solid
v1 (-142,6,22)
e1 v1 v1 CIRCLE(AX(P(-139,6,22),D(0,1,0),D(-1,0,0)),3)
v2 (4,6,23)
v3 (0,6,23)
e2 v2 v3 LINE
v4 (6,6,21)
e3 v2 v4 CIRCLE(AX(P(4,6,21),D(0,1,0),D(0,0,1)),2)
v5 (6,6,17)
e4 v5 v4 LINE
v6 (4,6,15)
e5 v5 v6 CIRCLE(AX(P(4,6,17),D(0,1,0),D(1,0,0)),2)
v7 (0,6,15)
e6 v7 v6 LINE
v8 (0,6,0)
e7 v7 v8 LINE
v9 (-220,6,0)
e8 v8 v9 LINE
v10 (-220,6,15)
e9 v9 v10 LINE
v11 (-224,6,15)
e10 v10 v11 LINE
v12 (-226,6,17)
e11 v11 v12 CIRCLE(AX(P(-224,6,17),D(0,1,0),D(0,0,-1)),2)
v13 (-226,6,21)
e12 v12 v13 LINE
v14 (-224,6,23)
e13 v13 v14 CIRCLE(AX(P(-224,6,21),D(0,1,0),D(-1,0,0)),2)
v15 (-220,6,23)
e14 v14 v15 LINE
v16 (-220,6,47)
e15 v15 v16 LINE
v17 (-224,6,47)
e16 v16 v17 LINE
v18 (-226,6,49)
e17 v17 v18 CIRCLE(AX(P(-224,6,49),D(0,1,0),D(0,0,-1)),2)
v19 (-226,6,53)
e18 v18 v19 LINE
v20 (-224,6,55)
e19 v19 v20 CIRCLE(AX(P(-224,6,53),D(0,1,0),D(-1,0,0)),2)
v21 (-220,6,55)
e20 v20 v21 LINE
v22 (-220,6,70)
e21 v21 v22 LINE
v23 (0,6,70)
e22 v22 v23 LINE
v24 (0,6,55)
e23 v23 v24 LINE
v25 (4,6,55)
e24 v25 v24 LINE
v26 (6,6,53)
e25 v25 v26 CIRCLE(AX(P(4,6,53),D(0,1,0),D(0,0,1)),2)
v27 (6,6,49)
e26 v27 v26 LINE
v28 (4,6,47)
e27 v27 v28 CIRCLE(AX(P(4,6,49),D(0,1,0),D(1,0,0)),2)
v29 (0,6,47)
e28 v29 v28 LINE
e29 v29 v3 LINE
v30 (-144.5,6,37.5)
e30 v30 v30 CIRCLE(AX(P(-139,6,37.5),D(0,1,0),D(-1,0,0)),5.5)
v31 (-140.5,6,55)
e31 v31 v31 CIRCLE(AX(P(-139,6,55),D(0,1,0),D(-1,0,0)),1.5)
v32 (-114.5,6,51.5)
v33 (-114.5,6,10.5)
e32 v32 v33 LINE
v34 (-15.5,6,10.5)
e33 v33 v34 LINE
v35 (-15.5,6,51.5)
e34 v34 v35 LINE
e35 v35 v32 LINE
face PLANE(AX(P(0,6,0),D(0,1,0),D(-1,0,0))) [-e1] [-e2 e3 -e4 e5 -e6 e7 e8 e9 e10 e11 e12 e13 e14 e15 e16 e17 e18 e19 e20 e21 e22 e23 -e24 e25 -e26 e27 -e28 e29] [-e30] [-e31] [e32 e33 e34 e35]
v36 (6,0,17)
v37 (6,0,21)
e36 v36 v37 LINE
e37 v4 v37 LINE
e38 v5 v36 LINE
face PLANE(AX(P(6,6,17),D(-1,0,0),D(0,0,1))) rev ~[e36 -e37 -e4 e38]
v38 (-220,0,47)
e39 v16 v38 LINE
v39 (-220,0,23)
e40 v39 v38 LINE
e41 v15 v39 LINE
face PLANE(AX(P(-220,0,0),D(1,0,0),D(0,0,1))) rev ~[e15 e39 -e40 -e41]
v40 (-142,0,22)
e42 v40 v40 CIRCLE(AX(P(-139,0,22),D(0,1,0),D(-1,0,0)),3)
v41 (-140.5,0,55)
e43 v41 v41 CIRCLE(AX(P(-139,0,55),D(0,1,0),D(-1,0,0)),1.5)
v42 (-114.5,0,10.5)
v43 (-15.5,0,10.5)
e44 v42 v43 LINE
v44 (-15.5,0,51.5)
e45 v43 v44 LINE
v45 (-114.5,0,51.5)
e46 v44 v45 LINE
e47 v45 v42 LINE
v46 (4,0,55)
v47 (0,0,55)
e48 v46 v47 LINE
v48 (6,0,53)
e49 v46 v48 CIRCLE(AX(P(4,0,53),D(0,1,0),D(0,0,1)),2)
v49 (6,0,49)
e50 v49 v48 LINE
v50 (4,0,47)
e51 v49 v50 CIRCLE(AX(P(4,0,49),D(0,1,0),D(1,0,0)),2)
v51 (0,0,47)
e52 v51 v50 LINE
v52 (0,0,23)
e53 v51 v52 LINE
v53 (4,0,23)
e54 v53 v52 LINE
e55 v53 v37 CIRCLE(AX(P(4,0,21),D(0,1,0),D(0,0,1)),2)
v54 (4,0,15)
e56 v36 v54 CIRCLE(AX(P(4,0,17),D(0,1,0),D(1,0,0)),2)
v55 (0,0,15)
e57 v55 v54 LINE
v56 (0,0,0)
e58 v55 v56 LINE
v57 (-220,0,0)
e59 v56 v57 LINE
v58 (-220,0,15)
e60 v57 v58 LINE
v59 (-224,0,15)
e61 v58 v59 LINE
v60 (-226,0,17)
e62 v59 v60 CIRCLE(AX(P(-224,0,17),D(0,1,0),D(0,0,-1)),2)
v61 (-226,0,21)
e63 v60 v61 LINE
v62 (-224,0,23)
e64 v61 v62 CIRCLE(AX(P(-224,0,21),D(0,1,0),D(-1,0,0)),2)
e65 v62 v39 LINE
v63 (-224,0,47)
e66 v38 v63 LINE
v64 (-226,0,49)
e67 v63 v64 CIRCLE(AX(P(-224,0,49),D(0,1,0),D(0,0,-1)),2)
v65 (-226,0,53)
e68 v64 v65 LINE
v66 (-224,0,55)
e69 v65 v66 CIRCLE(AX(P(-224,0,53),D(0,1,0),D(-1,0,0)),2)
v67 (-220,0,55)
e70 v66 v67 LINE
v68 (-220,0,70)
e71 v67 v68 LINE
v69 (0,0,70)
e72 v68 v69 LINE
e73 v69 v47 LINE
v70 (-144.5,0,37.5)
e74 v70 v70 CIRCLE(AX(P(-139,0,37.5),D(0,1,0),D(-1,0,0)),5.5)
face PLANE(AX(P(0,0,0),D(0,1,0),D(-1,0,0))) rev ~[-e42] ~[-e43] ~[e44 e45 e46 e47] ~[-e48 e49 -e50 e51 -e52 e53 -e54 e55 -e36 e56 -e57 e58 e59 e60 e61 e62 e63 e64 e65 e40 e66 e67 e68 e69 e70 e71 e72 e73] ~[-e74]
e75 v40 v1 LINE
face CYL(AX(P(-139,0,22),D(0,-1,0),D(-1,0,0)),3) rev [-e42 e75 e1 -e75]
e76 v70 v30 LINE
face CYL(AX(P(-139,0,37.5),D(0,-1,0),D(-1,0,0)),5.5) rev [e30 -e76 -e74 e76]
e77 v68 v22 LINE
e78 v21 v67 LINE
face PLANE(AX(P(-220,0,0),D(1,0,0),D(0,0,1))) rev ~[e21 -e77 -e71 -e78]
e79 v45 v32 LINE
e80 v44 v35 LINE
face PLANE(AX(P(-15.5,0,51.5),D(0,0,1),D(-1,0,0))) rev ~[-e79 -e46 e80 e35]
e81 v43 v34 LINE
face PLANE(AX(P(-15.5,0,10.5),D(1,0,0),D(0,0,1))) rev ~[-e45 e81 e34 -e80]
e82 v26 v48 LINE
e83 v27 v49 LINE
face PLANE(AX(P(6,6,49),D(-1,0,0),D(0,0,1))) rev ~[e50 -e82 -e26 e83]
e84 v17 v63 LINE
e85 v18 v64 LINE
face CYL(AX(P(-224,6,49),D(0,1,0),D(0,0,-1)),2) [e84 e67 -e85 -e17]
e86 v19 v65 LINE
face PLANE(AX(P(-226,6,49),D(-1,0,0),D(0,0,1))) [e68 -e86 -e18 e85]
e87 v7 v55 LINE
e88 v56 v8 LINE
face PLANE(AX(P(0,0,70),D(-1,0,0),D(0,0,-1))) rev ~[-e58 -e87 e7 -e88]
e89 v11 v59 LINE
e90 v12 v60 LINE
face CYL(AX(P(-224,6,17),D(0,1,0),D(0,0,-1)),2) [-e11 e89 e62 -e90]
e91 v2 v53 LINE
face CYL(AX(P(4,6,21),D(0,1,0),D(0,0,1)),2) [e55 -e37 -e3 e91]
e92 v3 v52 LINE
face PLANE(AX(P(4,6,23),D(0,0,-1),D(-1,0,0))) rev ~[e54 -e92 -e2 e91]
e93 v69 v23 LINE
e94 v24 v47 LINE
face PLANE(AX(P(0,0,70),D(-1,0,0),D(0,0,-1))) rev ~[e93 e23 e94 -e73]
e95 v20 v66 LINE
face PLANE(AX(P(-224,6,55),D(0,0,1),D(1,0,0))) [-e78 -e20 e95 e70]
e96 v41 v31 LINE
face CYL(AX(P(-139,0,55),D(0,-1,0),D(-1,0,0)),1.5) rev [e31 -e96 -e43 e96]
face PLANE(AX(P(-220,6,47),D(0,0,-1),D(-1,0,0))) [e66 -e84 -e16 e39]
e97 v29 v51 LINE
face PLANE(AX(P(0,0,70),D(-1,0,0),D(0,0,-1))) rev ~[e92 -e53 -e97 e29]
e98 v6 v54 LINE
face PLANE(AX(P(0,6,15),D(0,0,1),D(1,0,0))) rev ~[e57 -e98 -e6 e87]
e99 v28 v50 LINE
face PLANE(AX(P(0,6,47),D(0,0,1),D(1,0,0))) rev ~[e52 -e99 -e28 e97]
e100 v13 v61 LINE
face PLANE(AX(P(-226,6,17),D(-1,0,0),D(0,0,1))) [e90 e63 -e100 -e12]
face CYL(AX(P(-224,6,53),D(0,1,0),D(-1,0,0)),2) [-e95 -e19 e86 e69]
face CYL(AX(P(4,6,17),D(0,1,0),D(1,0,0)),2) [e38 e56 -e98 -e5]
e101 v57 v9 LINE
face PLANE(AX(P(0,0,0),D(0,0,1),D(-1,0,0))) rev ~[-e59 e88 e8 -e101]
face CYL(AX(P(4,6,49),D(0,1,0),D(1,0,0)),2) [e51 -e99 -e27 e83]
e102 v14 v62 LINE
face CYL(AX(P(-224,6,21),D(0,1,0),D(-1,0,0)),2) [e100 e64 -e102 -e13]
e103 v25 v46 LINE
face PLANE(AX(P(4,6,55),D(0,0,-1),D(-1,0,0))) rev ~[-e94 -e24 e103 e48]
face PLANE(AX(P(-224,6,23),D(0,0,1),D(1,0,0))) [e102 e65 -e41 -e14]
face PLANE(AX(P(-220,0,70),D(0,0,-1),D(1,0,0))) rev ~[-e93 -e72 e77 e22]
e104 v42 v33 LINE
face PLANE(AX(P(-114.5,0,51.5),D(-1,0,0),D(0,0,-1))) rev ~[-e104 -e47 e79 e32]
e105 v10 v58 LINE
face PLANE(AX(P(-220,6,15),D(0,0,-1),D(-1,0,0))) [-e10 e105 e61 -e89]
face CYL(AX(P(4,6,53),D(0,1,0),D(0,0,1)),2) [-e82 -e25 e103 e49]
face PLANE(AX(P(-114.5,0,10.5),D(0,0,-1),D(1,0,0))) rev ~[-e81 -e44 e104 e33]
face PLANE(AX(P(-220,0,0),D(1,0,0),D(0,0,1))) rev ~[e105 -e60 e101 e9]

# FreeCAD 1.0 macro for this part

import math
import FreeCAD as App
import Part
import Sketcher

V = App.Vector
Q = App.Units.Quantity


def add_polygon(sketch, points):
    """Adds a closed chain of lines whose ends are joined by coincident constraints."""
    first, n = sketch.GeometryCount, len(points)
    for a, b in zip(points, points[1:] + points[:1]):
        sketch.addGeometry(Part.LineSegment(App.Vector(*a, 0), App.Vector(*b, 0)), False)
    for i in range(n):
        sketch.addConstraint(Sketcher.Constraint("Coincident", first + i, 2, first + (i + 1) % n, 1))

doc = App.newDocument("Part")
body = doc.addObject("PartDesign::Body", "Body")

# Sketch on XZ plane
sketch1 = body.newObject("Sketcher::SketchObject", "Sketch")
sketch1.AttachmentSupport = (doc.getObject("XZ_Plane"), [""])
sketch1.MapMode = "FlatFace"
add_polygon(sketch1, [(0, 70), (0, 0), (-220, 0), (-220, 70)])  # lines 0-3
add_polygon(sketch1, [(-15.5, 10.5), (-15.5, 51.5), (-114.5, 51.5), (-114.5, 10.5)])  # lines 4-7
sketch1.addGeometry(Part.Circle(V(-139, 22, 0), V(0, 0, 1), 3), False)  # 8
sketch1.addGeometry(Part.Circle(V(-139, 37.5, 0), V(0, 0, 1), 5.5), False)  # 9
sketch1.addGeometry(Part.Circle(V(-139, 55, 0), V(0, 0, 1), 1.5), False)  # 10
sketch1.addConstraint(Sketcher.Constraint("Vertical", 0))
sketch1.addConstraint(Sketcher.Constraint("Horizontal", 1))
sketch1.addConstraint(Sketcher.Constraint("Vertical", 2))
sketch1.addConstraint(Sketcher.Constraint("Horizontal", 3))
sketch1.addConstraint(Sketcher.Constraint("Vertical", 4))
sketch1.addConstraint(Sketcher.Constraint("Horizontal", 5))
sketch1.addConstraint(Sketcher.Constraint("Vertical", 6))
sketch1.addConstraint(Sketcher.Constraint("Horizontal", 7))
sketch1.addConstraint(Sketcher.Constraint("Coincident", 0, 2, -1, 1))
sketch1.addConstraint(Sketcher.Constraint("Vertical", 8, 3, 9, 3))
sketch1.addConstraint(Sketcher.Constraint("Vertical", 9, 3, 10, 3))
sketch1.addConstraint(Sketcher.Constraint("Diameter", 8, Q("6 mm")))
sketch1.addConstraint(Sketcher.Constraint("Diameter", 9, Q("11 mm")))
sketch1.addConstraint(Sketcher.Constraint("Diameter", 10, Q("3 mm")))
sketch1.addConstraint(Sketcher.Constraint("DistanceX", 1, 2, 1, 1, Q("220 mm")))
sketch1.addConstraint(Sketcher.Constraint("DistanceX", 5, 2, 5, 1, Q("99 mm")))
sketch1.addConstraint(Sketcher.Constraint("DistanceY", 4, 1, 4, 2, Q("41 mm")))
sketch1.addConstraint(Sketcher.Constraint("DistanceY", -1, 1, 10, 3, Q("55 mm")))
sketch1.addConstraint(Sketcher.Constraint("DistanceY", 9, 3, 4, 2, Q("14 mm")))
sketch1.addConstraint(Sketcher.Constraint("DistanceX", 4, 2, -1, 1, Q("15.5 mm")))
sketch1.addConstraint(Sketcher.Constraint("DistanceY", 8, 3, 9, 3, Q("15.5 mm")))
sketch1.addConstraint(Sketcher.Constraint("DistanceY", 9, 3, 10, 3, Q("17.5 mm")))
sketch1.addConstraint(Sketcher.Constraint("DistanceY", 0, 2, 0, 1, Q("70 mm")))
sketch1.addConstraint(Sketcher.Constraint("DistanceX", 8, 3, -1, 1, Q("139 mm")))
pad1 = body.newObject("PartDesign::Pad", "Pad")
pad1.Profile = sketch1
pad1.Length = 6
pad1.Reversed = True

# Sketch on XZ plane
sketch2 = body.newObject("Sketcher::SketchObject", "Sketch001")
sketch2.AttachmentSupport = (doc.getObject("XZ_Plane"), [""])
sketch2.MapMode = "FlatFace"
sketch2.AttachmentOffset = App.Placement(V(0, 0, -6), App.Rotation())
sketch2.addGeometry(Part.LineSegment(V(4, 15, 0), V(0, 15, 0)), False)
sketch2.addGeometry(Part.LineSegment(V(0, 15, 0), V(0, 23, 0)), False)
sketch2.addGeometry(Part.LineSegment(V(0, 23, 0), V(4, 23, 0)), False)
sketch2.addGeometry(Part.ArcOfCircle(Part.Circle(V(4, 21, 0), V(0, 0, 1), 2), math.radians(0), math.radians(90)), False)
sketch2.addGeometry(Part.LineSegment(V(6, 21, 0), V(6, 17, 0)), False)
sketch2.addGeometry(Part.ArcOfCircle(Part.Circle(V(4, 17, 0), V(0, 0, 1), 2), math.radians(-90), math.radians(0)), False)
sketch2.addGeometry(Part.LineSegment(V(-220, 23, 0), V(-220, 15, 0)), False)
sketch2.addGeometry(Part.LineSegment(V(-220, 15, 0), V(-224, 15, 0)), False)
sketch2.addGeometry(Part.ArcOfCircle(Part.Circle(V(-224, 17, 0), V(0, 0, 1), 2), math.radians(180), math.radians(270)), False)
sketch2.addGeometry(Part.LineSegment(V(-226, 17, 0), V(-226, 21, 0)), False)
sketch2.addGeometry(Part.ArcOfCircle(Part.Circle(V(-224, 21, 0), V(0, 0, 1), 2), math.radians(90), math.radians(180)), False)
sketch2.addGeometry(Part.LineSegment(V(-224, 23, 0), V(-220, 23, 0)), False)
sketch2.addGeometry(Part.LineSegment(V(4, 47, 0), V(0, 47, 0)), False)
sketch2.addGeometry(Part.LineSegment(V(0, 47, 0), V(0, 55, 0)), False)
sketch2.addGeometry(Part.LineSegment(V(0, 55, 0), V(4, 55, 0)), False)
sketch2.addGeometry(Part.ArcOfCircle(Part.Circle(V(4, 53, 0), V(0, 0, 1), 2), math.radians(0), math.radians(90)), False)
sketch2.addGeometry(Part.LineSegment(V(6, 53, 0), V(6, 49, 0)), False)
sketch2.addGeometry(Part.ArcOfCircle(Part.Circle(V(4, 49, 0), V(0, 0, 1), 2), math.radians(-90), math.radians(0)), False)
sketch2.addGeometry(Part.LineSegment(V(-220, 55, 0), V(-220, 47, 0)), False)
sketch2.addGeometry(Part.LineSegment(V(-220, 47, 0), V(-224, 47, 0)), False)
sketch2.addGeometry(Part.ArcOfCircle(Part.Circle(V(-224, 49, 0), V(0, 0, 1), 2), math.radians(180), math.radians(270)), False)
sketch2.addGeometry(Part.LineSegment(V(-226, 49, 0), V(-226, 53, 0)), False)
sketch2.addGeometry(Part.ArcOfCircle(Part.Circle(V(-224, 53, 0), V(0, 0, 1), 2), math.radians(90), math.radians(180)), False)
sketch2.addGeometry(Part.LineSegment(V(-224, 55, 0), V(-220, 55, 0)), False)
sketch2.addConstraint(Sketcher.Constraint("Coincident", 0, 2, 1, 1))
sketch2.addConstraint(Sketcher.Constraint("Coincident", 1, 2, 2, 1))
sketch2.addConstraint(Sketcher.Constraint("Tangent", 2, 2, 3, 2))
sketch2.addConstraint(Sketcher.Constraint("Tangent", 3, 1, 4, 1))
sketch2.addConstraint(Sketcher.Constraint("Tangent", 4, 2, 5, 2))
sketch2.addConstraint(Sketcher.Constraint("Tangent", 5, 1, 0, 1))
sketch2.addConstraint(Sketcher.Constraint("Coincident", 6, 2, 7, 1))
sketch2.addConstraint(Sketcher.Constraint("Tangent", 7, 2, 8, 2))
sketch2.addConstraint(Sketcher.Constraint("Tangent", 8, 1, 9, 1))
sketch2.addConstraint(Sketcher.Constraint("Tangent", 9, 2, 10, 2))
sketch2.addConstraint(Sketcher.Constraint("Tangent", 10, 1, 11, 1))
sketch2.addConstraint(Sketcher.Constraint("Coincident", 11, 2, 6, 1))
sketch2.addConstraint(Sketcher.Constraint("Coincident", 12, 2, 13, 1))
sketch2.addConstraint(Sketcher.Constraint("Coincident", 13, 2, 14, 1))
sketch2.addConstraint(Sketcher.Constraint("Tangent", 14, 2, 15, 2))
sketch2.addConstraint(Sketcher.Constraint("Tangent", 15, 1, 16, 1))
sketch2.addConstraint(Sketcher.Constraint("Tangent", 16, 2, 17, 2))
sketch2.addConstraint(Sketcher.Constraint("Tangent", 17, 1, 12, 1))
sketch2.addConstraint(Sketcher.Constraint("Coincident", 18, 2, 19, 1))
sketch2.addConstraint(Sketcher.Constraint("Tangent", 19, 2, 20, 2))
sketch2.addConstraint(Sketcher.Constraint("Tangent", 20, 1, 21, 1))
sketch2.addConstraint(Sketcher.Constraint("Tangent", 21, 2, 22, 2))
sketch2.addConstraint(Sketcher.Constraint("Tangent", 22, 1, 23, 1))
sketch2.addConstraint(Sketcher.Constraint("Coincident", 23, 2, 18, 1))
sketch2.addConstraint(Sketcher.Constraint("Horizontal", 0))
sketch2.addConstraint(Sketcher.Constraint("Vertical", 1))
sketch2.addConstraint(Sketcher.Constraint("Horizontal", 2))
sketch2.addConstraint(Sketcher.Constraint("Vertical", 4))
sketch2.addConstraint(Sketcher.Constraint("Vertical", 6))
sketch2.addConstraint(Sketcher.Constraint("Horizontal", 7))
sketch2.addConstraint(Sketcher.Constraint("Vertical", 9))
sketch2.addConstraint(Sketcher.Constraint("Horizontal", 11))
sketch2.addConstraint(Sketcher.Constraint("Horizontal", 12))
sketch2.addConstraint(Sketcher.Constraint("Vertical", 13))
sketch2.addConstraint(Sketcher.Constraint("Horizontal", 14))
sketch2.addConstraint(Sketcher.Constraint("Vertical", 16))
sketch2.addConstraint(Sketcher.Constraint("Vertical", 18))
sketch2.addConstraint(Sketcher.Constraint("Horizontal", 19))
sketch2.addConstraint(Sketcher.Constraint("Vertical", 21))
sketch2.addConstraint(Sketcher.Constraint("Horizontal", 23))
sketch2.addConstraint(Sketcher.Constraint("Equal", 3, 5))
sketch2.addConstraint(Sketcher.Constraint("Equal", 5, 8))
sketch2.addConstraint(Sketcher.Constraint("Equal", 8, 10))
sketch2.addConstraint(Sketcher.Constraint("Equal", 10, 15))
sketch2.addConstraint(Sketcher.Constraint("Equal", 15, 17))
sketch2.addConstraint(Sketcher.Constraint("Equal", 17, 20))
sketch2.addConstraint(Sketcher.Constraint("Equal", 20, 22))
sketch2.addConstraint(Sketcher.Constraint("PointOnObject", 0, 2, -2))
sketch2.addConstraint(Sketcher.Constraint("PointOnObject", 12, 2, -2))
sketch2.addConstraint(Sketcher.Constraint("Horizontal", 5, 3, 8, 3))
sketch2.addConstraint(Sketcher.Constraint("Horizontal", 3, 3, 10, 3))
sketch2.addConstraint(Sketcher.Constraint("Horizontal", 17, 3, 20, 3))
sketch2.addConstraint(Sketcher.Constraint("Horizontal", 15, 3, 22, 3))
sketch2.addConstraint(Sketcher.Constraint("Vertical", 5, 3, 15, 3))
sketch2.addConstraint(Sketcher.Constraint("Vertical", 10, 3, 20, 3))
sketch2.addConstraint(Sketcher.Constraint("Vertical", 11, 2, 18, 2))
sketch2.addConstraint(Sketcher.Constraint("Equal", 2, 7))
sketch2.addConstraint(Sketcher.Constraint("Equal", 23, 4))
sketch2.addConstraint(Sketcher.Constraint("Equal", 6, 13))
sketch2.addConstraint(Sketcher.Constraint("Radius", 3, Q("2 mm")))
sketch2.addConstraint(Sketcher.Constraint("DistanceY", 1, 1, 1, 2, Q("8 mm")))
sketch2.addConstraint(Sketcher.Constraint("DistanceY", -1, 1, 0, 2, Q("15 mm")))
sketch2.addConstraint(Sketcher.Constraint("DistanceX", 8, 3, -1, 1, Q("224 mm")))
sketch2.addConstraint(Sketcher.Constraint("DistanceY", -1, 1, 15, 3, Q("53 mm")))
pad2 = body.newObject("PartDesign::Pad", "Pad001")
pad2.Profile = sketch2
pad2.Length = 6

doc.recompute()
